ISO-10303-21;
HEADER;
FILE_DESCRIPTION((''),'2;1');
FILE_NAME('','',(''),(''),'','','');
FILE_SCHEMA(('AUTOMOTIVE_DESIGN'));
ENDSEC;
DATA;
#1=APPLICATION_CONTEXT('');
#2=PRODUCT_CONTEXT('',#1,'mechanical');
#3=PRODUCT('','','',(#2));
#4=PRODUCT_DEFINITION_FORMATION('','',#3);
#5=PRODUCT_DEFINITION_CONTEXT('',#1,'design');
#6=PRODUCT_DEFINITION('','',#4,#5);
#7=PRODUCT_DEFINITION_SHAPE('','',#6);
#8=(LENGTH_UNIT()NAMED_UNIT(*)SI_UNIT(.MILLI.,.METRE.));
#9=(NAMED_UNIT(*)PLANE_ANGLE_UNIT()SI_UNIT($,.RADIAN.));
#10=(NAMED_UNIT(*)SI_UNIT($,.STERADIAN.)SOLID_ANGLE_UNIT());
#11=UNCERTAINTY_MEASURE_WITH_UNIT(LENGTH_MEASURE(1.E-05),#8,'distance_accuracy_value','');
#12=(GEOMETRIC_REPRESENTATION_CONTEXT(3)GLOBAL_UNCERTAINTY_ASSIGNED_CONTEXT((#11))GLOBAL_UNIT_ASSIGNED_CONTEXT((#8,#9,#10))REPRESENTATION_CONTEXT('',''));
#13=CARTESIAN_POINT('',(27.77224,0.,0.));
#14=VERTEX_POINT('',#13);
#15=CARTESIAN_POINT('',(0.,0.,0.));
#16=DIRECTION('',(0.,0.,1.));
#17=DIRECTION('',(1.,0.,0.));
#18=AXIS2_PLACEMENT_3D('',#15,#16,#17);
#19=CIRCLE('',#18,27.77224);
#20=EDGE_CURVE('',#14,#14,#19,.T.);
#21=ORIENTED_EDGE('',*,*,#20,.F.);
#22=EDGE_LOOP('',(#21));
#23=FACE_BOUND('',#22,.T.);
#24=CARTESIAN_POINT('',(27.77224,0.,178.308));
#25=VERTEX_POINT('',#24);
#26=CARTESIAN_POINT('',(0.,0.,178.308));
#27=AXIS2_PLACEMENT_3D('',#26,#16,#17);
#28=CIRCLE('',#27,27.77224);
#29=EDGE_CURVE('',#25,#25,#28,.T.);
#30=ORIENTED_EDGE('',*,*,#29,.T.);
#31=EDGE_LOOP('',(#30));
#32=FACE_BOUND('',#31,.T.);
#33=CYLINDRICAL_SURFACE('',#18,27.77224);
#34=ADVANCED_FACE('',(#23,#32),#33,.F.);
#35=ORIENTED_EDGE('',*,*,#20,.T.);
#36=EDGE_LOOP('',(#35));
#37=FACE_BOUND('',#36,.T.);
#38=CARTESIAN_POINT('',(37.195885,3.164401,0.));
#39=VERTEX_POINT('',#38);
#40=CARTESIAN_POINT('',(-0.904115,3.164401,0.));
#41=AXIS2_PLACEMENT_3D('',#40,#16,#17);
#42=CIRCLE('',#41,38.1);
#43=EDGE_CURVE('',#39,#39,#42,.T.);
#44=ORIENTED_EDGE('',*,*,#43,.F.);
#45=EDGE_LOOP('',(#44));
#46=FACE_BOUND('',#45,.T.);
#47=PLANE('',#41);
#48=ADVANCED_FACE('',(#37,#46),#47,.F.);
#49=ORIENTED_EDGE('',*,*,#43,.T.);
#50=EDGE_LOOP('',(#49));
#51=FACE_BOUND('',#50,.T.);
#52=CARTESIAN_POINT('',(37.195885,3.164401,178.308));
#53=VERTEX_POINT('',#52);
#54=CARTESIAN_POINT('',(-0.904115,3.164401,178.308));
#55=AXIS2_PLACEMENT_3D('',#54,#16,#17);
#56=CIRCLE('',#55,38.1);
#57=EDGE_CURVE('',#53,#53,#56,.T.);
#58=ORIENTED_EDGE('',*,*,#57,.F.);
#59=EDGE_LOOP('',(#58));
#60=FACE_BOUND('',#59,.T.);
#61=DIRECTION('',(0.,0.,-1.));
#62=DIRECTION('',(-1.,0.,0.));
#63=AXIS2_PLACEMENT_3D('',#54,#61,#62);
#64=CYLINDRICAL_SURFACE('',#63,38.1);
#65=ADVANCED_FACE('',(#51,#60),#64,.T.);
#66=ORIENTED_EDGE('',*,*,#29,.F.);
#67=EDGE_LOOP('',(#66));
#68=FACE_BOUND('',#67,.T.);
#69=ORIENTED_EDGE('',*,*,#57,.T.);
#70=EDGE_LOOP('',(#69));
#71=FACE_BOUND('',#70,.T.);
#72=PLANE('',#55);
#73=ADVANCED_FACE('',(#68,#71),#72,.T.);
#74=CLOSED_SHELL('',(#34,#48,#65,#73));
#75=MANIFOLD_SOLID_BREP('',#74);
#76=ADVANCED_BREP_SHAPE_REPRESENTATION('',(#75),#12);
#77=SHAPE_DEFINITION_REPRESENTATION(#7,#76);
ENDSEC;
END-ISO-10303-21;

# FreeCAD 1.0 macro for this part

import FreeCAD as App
import Part
import Sketcher

V = App.Vector
Q = App.Units.Quantity

doc = App.newDocument("Part")
body = doc.addObject("PartDesign::Body", "Body")

sketch1 = doc.addObject("Sketcher::SketchObject", "Sketch")
body.addObject(sketch1)
sketch1.AttachmentSupport = (doc.XY_Plane, [""])
sketch1.MapMode = "FlatFace"
sketch1.addGeometry(Part.Circle(V(-0.904115, 3.164401, 0), V(0, 0, 1), 38.1), False)
sketch1.addConstraint(Sketcher.Constraint("Diameter", 0, Q("3 in")))
sketch1.addConstraint(Sketcher.Constraint("DistanceY", -1, 1, 0, 3, Q("3.164401 mm")))
sketch1.addConstraint(Sketcher.Constraint("DistanceX", 0, 3, -1, 1, Q("0.904115 mm")))
pad1 = doc.addObject("PartDesign::Pad", "Pad")
body.addObject(pad1)
pad1.Profile = sketch1
pad1.Length = Q("7.02 in")

sketch2 = doc.addObject("Sketcher::SketchObject", "Sketch001")
body.addObject(sketch2)
sketch2.AttachmentSupport = (doc.XY_Plane, [""])
sketch2.MapMode = "FlatFace"
sketch2.AttachmentOffset = App.Placement(V(0, 0, 7.02 * 25.4), App.Rotation())
sketch2.addGeometry(Part.Circle(V(0, 0, 0), V(0, 0, 1), 27.77224), False)
sketch2.addConstraint(Sketcher.Constraint("Coincident", 0, 3, -1, 1))
sketch2.addConstraint(Sketcher.Constraint("Diameter", 0, Q("55.54448 mm")))
pocket1 = doc.addObject("PartDesign::Pocket", "Pocket")
body.addObject(pocket1)
pocket1.Profile = sketch2
pocket1.Length = Q("7.02 in")

doc.recompute()
